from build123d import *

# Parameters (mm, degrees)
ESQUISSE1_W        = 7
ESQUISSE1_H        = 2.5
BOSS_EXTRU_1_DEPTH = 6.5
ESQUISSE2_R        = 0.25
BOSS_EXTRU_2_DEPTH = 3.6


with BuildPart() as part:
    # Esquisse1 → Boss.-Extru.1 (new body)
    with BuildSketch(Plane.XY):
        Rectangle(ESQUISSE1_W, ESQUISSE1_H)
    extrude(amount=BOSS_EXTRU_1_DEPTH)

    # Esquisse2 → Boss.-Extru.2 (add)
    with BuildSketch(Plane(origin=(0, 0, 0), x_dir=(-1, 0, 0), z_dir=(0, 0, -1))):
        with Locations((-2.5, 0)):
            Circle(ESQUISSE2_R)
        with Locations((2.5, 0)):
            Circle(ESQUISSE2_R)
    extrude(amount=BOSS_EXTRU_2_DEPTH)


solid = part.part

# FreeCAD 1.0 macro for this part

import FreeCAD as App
import Part
import Sketcher
Q = App.Units.Quantity


def add_polygon(sketch, points):
    """Adds a closed chain of lines whose ends are joined by coincident constraints."""
    first, n = sketch.GeometryCount, len(points)
    for a, b in zip(points, points[1:] + points[:1]):
        sketch.addGeometry(Part.LineSegment(App.Vector(*a, 0), App.Vector(*b, 0)), False)
    for i in range(n):
        sketch.addConstraint(Sketcher.Constraint("Coincident", first + i, 2, first + (i + 1) % n, 1))

doc = App.newDocument("Part")
body = doc.addObject("PartDesign::Body", "Body")

# Sketch on XY plane
sketch1 = doc.addObject("Sketcher::SketchObject", "Sketch")
body.addObject(sketch1)
sketch1.AttachmentSupport = (doc.XY_Plane, [""])
sketch1.MapMode = "FlatFace"
add_polygon(sketch1, [(-3.5, 1.2), (-3.5, -1.2), (3.5, -1.2), (3.5, 1.2)])  # lines 0-3
sketch1.addConstraint(Sketcher.Constraint("Vertical", 0))
sketch1.addConstraint(Sketcher.Constraint("Horizontal", 1))
sketch1.addConstraint(Sketcher.Constraint("Vertical", 2))
sketch1.addConstraint(Sketcher.Constraint("Horizontal", 3))
sketch1.addConstraint(Sketcher.Constraint("Symmetric", 0, 2, 2, 2, -1, 1))
sketch1.addConstraint(Sketcher.Constraint("DistanceX", 1, 1, 1, 2, Q("7 mm")))
sketch1.addConstraint(Sketcher.Constraint("DistanceY", 0, 2, 0, 1, Q("2.5 mm")))
pad1 = doc.addObject("PartDesign::Pad", "Pad")
body.addObject(pad1)
pad1.Profile = sketch1
pad1.Length = 6.5

# Sketch on XY plane
sketch2 = doc.addObject("Sketcher::SketchObject", "Sketch001")
body.addObject(sketch2)
sketch2.AttachmentSupport = (doc.XY_Plane, [""])
sketch2.MapMode = "FlatFace"
sketch2.addGeometry(Part.Circle(App.Vector(2.5, 0, 0), App.Vector(0, 0, 1), 0.25), False)
sketch2.addGeometry(Part.Circle(App.Vector(-2.5, 0, 0), App.Vector(0, 0, 1), 0.25), False)
sketch2.addConstraint(Sketcher.Constraint("Equal", 0, 1))
sketch2.addConstraint(Sketcher.Constraint("Symmetric", 0, 3, 1, 3, -1, 1))
sketch2.addConstraint(Sketcher.Constraint("PointOnObject", 0, 3, -1))
sketch2.addConstraint(Sketcher.Constraint("Diameter", 0, Q("0.5 mm")))
sketch2.addConstraint(Sketcher.Constraint("DistanceX", 1, 3, 0, 3, Q("5 mm")))
pad2 = doc.addObject("PartDesign::Pad", "Pad001")
body.addObject(pad2)
pad2.Profile = sketch2
pad2.Length = 3.6
pad2.Reversed = True

doc.recompute()
